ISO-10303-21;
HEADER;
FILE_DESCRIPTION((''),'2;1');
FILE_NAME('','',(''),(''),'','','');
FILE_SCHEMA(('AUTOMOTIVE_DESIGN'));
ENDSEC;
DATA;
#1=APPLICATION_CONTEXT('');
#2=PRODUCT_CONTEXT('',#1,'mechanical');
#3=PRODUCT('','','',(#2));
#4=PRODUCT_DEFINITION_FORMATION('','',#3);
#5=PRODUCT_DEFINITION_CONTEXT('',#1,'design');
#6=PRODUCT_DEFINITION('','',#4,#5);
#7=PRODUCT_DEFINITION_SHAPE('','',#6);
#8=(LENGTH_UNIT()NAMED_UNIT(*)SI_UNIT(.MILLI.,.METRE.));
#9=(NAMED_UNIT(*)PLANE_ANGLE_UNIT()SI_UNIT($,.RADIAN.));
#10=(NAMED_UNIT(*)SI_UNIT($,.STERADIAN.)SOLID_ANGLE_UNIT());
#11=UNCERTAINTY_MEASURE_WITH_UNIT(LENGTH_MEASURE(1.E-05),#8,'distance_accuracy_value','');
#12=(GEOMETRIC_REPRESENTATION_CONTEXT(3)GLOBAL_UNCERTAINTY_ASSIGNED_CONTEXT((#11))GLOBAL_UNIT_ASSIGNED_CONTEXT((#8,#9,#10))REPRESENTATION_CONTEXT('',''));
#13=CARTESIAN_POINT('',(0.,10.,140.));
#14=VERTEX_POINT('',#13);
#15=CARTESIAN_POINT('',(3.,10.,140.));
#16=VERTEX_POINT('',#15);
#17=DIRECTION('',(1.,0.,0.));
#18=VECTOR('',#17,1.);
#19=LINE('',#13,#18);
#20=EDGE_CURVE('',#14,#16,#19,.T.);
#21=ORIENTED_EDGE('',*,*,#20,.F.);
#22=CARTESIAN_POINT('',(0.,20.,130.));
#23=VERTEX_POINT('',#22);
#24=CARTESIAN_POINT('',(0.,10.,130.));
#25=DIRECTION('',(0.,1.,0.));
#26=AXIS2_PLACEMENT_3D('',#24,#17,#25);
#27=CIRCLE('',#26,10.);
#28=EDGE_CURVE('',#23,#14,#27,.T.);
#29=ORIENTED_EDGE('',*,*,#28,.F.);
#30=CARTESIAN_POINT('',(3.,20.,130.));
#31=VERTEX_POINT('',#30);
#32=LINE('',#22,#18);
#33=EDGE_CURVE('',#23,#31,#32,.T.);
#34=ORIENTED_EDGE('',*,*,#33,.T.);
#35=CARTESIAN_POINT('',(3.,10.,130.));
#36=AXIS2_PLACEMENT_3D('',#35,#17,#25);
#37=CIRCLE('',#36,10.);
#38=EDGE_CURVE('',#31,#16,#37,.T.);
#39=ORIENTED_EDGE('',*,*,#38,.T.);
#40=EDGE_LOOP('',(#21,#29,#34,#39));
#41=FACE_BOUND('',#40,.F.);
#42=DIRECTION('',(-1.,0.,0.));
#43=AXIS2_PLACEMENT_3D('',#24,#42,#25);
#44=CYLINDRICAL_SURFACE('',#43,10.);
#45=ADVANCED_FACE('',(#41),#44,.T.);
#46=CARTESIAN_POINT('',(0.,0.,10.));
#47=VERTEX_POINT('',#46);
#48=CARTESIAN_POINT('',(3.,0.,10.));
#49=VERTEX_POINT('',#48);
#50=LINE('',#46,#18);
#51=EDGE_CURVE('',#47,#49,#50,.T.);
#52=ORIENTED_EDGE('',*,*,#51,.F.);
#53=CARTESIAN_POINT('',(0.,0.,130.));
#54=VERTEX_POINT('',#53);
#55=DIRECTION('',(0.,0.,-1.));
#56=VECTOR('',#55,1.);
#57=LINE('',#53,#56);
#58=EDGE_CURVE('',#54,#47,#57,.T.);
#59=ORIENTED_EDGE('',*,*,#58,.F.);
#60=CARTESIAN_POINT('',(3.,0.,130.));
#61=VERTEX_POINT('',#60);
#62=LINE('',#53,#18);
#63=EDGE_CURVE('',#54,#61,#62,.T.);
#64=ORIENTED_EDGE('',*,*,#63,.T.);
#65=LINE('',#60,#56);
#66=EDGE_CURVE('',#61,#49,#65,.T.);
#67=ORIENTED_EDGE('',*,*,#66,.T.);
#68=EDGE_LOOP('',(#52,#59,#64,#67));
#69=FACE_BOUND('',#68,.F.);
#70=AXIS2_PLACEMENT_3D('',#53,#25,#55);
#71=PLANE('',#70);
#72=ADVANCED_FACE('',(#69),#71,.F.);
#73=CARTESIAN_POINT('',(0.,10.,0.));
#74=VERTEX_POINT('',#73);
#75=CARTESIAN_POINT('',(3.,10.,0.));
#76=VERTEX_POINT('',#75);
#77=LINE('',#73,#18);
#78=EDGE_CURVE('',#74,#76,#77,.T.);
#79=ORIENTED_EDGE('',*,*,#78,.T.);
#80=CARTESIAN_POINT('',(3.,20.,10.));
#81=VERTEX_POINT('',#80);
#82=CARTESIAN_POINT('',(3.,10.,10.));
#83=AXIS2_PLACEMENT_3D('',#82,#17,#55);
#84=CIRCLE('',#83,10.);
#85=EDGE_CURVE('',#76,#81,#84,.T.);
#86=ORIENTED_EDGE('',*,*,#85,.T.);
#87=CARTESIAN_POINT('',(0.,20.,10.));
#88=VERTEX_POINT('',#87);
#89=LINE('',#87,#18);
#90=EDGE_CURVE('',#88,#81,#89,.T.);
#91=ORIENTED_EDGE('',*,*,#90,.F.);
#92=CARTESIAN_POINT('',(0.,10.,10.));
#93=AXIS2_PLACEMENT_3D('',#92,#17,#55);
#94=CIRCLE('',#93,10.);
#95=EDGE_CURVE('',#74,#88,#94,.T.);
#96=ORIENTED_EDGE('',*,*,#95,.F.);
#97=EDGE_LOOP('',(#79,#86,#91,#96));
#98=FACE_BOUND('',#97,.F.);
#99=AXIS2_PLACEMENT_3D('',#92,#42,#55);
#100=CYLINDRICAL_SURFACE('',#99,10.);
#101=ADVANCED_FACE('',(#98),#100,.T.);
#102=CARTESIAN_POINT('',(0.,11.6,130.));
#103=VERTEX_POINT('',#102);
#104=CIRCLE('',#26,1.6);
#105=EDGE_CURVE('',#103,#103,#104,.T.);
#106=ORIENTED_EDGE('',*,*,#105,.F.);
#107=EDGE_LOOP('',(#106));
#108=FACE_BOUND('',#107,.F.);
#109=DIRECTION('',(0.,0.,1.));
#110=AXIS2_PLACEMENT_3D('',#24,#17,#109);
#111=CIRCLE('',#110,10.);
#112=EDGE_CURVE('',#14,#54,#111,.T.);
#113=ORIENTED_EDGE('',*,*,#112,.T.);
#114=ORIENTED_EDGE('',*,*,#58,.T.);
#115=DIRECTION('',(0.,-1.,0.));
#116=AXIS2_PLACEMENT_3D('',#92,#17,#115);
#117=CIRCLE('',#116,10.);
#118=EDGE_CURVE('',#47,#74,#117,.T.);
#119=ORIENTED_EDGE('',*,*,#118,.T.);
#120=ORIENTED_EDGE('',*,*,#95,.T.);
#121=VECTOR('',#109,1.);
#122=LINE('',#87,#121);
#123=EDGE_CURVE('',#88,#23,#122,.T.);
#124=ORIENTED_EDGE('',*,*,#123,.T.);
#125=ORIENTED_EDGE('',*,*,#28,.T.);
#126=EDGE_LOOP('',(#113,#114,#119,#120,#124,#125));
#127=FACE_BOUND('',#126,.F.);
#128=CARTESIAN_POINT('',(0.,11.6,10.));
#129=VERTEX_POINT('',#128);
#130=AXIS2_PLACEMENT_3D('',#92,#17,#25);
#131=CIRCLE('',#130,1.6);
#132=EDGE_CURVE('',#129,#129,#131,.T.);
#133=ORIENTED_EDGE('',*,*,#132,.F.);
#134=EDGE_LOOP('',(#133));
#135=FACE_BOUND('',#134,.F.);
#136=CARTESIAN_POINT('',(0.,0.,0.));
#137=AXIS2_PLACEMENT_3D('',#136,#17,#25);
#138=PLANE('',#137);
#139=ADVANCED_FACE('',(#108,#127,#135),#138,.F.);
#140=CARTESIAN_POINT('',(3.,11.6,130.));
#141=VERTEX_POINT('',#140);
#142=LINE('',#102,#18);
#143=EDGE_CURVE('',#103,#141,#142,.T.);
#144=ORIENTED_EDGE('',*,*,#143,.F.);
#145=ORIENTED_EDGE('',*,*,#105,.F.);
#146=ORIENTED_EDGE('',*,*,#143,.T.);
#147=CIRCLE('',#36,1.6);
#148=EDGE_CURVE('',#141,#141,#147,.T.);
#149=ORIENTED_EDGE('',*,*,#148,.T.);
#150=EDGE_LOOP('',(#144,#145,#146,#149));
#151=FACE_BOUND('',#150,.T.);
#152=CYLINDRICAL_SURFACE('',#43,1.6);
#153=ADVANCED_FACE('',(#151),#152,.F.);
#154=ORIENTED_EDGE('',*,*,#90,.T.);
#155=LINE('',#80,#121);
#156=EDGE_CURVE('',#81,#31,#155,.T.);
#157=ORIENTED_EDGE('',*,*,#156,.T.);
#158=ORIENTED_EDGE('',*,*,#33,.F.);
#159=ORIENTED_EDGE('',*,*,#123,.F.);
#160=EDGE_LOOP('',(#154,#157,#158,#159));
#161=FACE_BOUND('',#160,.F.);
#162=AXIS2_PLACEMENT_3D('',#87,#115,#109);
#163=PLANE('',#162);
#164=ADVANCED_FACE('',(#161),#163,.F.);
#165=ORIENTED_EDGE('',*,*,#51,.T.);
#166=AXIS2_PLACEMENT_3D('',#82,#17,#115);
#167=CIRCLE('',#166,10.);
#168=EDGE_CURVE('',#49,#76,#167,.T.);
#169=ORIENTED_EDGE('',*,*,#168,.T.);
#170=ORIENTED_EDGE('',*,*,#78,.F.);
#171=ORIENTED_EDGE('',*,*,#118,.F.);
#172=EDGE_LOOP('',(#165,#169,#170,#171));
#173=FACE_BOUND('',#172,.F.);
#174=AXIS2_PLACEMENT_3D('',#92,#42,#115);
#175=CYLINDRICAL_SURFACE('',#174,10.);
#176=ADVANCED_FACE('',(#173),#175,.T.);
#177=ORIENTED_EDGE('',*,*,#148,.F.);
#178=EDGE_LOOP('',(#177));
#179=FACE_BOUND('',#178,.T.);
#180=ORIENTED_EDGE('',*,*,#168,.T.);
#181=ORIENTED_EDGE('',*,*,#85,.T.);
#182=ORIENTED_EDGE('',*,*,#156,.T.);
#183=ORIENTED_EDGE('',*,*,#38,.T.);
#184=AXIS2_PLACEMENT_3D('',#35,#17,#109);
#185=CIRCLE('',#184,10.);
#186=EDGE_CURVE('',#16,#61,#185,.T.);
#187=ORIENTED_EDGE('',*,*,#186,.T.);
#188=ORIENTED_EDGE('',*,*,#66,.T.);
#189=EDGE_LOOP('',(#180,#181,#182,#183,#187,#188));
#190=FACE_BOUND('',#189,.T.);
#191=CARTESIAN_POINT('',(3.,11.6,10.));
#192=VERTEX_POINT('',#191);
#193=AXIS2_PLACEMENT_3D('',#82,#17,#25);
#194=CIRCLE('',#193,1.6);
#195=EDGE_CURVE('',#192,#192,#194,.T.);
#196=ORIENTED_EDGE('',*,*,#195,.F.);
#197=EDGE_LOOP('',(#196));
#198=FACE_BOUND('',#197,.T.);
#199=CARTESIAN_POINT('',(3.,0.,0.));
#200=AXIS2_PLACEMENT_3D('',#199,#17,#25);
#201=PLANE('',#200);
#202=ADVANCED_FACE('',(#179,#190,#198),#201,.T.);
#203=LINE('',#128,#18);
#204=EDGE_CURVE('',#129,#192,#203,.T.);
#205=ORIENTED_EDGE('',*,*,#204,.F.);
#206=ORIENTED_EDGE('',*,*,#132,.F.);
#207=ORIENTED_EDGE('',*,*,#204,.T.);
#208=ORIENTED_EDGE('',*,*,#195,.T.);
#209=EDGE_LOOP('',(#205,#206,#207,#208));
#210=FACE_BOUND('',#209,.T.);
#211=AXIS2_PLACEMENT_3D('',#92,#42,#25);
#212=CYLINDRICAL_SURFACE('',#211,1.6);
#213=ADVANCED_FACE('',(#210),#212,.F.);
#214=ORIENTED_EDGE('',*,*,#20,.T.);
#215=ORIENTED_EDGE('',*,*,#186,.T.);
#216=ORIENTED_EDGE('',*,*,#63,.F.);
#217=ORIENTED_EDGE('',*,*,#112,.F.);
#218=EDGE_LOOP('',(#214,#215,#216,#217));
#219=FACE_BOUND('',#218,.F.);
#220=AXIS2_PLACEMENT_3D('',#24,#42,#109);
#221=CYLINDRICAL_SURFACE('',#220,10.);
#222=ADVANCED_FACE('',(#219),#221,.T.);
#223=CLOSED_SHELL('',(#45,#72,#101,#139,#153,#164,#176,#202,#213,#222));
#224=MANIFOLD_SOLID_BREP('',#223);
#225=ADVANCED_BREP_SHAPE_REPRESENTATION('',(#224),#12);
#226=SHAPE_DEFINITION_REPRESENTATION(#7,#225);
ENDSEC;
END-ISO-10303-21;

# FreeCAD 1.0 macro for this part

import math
import FreeCAD as App
import Part
import Sketcher
Q = App.Units.Quantity

doc = App.newDocument("Part")
params = doc.addObject("Spreadsheet::Sheet", "Params")
for row, (alias, value) in enumerate([
    ("sketch1_radius", "10 mm"),
    ("sketch1_diameter", "3.2 mm"),
    ("sketch1_height", "120 mm"),
    ("pad1_length", "3 mm"),
], start=1):
    params.set(f"A{row}", alias)
    params.set(f"B{row}", "=" + value)
    params.setAlias(f"B{row}", alias)

body = doc.addObject("PartDesign::Body", "Body")

sketch1 = body.newObject("Sketcher::SketchObject", "Sketch")
sketch1.AttachmentSupport = (doc.getObject("YZ_Plane"), [""])
sketch1.MapMode = "FlatFace"
sketch1.addGeometry([
    Part.ArcOfCircle(Part.Circle(App.Vector(10, 10, 0), App.Vector(0, 0, 1), 10), math.radians(180), math.radians(360)),
    Part.LineSegment(App.Vector(20, 10, 0), App.Vector(20, 130, 0)),
    Part.ArcOfCircle(Part.Circle(App.Vector(10, 130, 0), App.Vector(0, 0, 1), 10), math.radians(0), math.radians(180)),
    Part.LineSegment(App.Vector(0, 130, 0), App.Vector(0, 10, 0)),
    Part.Circle(App.Vector(10, 10, 0), App.Vector(0, 0, 1), 1.6),
    Part.Circle(App.Vector(10, 130, 0), App.Vector(0, 0, 1), 1.6),
], False)
sketch1.addConstraint([
    Sketcher.Constraint("Tangent", 0, 2, 1, 1),
    Sketcher.Constraint("Tangent", 1, 2, 2, 1),
    Sketcher.Constraint("Tangent", 2, 2, 3, 1),
    Sketcher.Constraint("Tangent", 3, 2, 0, 1),
    Sketcher.Constraint("Vertical", 1),
    Sketcher.Constraint("Vertical", 3),
    Sketcher.Constraint("Coincident", 4, 3, 0, 3),
    Sketcher.Constraint("Coincident", 5, 3, 2, 3),
    Sketcher.Constraint("Equal", 4, 5),
    Sketcher.Constraint("PointOnObject", 2, 2, -2),
    Sketcher.Constraint("Radius", 0, Q("10 mm")),
    Sketcher.Constraint("Diameter", 4, Q("3.2 mm")),
    Sketcher.Constraint("DistanceY", 1, 1, 1, 2, Q("120 mm")),
    Sketcher.Constraint("DistanceY", -1, 1, 0, 3, Q("10 mm")),
])
sketch1.setExpression("Constraints[10]", "Params.sketch1_radius")
sketch1.setExpression("Constraints[11]", "Params.sketch1_diameter")
sketch1.setExpression("Constraints[12]", "Params.sketch1_height")
pad1 = body.newObject("PartDesign::Pad", "Pad")
pad1.Profile = sketch1
pad1.setExpression("Length", "Params.pad1_length")

doc.recompute()
